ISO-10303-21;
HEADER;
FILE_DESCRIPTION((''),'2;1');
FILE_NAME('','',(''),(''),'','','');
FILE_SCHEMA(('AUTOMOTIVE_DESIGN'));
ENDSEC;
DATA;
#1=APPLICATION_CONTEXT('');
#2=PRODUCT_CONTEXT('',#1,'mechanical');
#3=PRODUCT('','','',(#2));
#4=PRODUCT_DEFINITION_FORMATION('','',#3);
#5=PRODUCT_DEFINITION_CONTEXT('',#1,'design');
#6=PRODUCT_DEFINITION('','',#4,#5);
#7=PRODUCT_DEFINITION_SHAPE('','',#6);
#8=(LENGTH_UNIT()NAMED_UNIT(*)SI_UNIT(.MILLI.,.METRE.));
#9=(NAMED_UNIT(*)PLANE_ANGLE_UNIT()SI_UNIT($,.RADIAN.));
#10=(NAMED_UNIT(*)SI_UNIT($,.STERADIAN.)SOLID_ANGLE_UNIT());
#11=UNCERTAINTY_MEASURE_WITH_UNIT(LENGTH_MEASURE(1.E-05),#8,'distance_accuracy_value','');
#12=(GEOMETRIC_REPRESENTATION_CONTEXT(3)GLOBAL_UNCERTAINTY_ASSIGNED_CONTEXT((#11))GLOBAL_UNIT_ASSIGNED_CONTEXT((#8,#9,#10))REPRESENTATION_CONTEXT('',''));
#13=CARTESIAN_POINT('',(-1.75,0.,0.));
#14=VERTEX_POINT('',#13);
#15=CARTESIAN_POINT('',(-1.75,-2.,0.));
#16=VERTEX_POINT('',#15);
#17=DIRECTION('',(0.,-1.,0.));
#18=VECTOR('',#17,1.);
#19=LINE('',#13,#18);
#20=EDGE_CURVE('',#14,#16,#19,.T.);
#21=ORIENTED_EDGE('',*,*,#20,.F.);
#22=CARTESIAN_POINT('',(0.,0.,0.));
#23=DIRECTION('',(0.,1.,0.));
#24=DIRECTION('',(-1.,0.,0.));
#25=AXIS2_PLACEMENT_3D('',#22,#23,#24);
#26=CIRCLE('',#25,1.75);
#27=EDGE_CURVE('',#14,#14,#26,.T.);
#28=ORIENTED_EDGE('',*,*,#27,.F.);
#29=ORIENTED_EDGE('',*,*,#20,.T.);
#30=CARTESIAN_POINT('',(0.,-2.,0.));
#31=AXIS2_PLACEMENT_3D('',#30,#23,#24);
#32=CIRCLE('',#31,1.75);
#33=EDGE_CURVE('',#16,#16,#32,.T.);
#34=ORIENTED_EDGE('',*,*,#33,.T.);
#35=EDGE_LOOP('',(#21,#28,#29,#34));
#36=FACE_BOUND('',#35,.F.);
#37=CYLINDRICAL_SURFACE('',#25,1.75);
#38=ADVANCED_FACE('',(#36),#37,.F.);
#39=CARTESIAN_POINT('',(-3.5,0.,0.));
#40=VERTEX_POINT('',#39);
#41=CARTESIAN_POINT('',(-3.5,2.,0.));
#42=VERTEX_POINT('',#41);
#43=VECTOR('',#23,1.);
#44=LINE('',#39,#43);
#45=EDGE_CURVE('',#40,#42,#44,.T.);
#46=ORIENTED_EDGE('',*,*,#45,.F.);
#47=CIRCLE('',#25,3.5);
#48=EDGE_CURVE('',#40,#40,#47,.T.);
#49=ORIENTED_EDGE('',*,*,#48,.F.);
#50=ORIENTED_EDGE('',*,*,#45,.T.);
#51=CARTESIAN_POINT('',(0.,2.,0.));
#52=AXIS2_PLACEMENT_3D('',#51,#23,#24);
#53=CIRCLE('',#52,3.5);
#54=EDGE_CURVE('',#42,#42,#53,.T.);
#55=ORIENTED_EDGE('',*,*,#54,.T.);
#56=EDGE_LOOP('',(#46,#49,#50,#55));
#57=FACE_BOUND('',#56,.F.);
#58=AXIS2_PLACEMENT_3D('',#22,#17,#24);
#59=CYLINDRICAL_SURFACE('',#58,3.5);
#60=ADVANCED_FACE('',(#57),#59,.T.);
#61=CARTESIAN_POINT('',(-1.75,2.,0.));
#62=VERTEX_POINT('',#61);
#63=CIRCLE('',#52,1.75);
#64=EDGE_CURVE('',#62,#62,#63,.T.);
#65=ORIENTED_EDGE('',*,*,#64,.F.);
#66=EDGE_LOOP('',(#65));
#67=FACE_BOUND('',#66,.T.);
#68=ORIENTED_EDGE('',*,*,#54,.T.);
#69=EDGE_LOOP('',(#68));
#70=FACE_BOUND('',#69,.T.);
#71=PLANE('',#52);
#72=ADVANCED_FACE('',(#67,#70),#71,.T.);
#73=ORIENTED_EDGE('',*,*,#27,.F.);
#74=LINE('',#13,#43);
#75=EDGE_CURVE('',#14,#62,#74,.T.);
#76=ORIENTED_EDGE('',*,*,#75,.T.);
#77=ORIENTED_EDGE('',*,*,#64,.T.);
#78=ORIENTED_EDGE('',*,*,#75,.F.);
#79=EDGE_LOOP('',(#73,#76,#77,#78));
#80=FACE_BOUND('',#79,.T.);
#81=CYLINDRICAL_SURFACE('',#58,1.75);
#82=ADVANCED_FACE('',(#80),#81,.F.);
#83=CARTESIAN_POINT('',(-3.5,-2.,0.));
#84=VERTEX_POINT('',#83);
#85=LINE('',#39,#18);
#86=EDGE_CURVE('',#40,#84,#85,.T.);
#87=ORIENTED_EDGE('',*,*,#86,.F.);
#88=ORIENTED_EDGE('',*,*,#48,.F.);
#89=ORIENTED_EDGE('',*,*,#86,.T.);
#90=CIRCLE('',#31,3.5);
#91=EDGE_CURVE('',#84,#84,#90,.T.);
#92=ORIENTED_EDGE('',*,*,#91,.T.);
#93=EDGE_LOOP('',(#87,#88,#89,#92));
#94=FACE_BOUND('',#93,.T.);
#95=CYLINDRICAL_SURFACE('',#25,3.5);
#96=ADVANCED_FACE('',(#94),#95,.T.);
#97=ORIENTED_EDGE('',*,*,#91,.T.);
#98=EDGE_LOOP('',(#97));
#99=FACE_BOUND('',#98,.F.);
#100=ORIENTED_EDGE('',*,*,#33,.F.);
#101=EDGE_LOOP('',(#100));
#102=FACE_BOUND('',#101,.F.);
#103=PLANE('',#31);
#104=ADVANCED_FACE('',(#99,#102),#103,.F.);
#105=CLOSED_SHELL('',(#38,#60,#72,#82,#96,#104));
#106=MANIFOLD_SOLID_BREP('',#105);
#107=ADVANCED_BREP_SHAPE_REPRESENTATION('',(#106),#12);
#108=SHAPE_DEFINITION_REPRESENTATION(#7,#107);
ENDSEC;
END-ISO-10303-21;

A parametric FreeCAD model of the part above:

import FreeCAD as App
import Part
import Sketcher

V = App.Vector
Q = App.Units.Quantity

doc = App.newDocument("Part")
body = doc.addObject("PartDesign::Body", "Body")

sketch1 = body.newObject("Sketcher::SketchObject", "Sketch")
sketch1.AttachmentSupport = (doc.getObject("XZ_Plane"), [""])
sketch1.MapMode = "FlatFace"
sketch1.addGeometry([
    Part.Circle(V(0, 0, 0), V(0, 0, 1), 3.5),
    Part.Circle(V(0, 0, 0), V(0, 0, 1), 1.8),
], False)
sketch1.addConstraint([
    Sketcher.Constraint("Coincident", 0, 3, -1, 1),
    Sketcher.Constraint("Coincident", 1, 3, -1, 1),
    Sketcher.Constraint("Diameter", 0, Q("7 mm")),
    Sketcher.Constraint("Diameter", 1, Q("3.5 mm")),
])
pad1 = body.newObject("PartDesign::Pad", "Pad")
pad1.Profile = sketch1
pad1.Length = 4
pad1.Midplane = True

doc.recompute()
